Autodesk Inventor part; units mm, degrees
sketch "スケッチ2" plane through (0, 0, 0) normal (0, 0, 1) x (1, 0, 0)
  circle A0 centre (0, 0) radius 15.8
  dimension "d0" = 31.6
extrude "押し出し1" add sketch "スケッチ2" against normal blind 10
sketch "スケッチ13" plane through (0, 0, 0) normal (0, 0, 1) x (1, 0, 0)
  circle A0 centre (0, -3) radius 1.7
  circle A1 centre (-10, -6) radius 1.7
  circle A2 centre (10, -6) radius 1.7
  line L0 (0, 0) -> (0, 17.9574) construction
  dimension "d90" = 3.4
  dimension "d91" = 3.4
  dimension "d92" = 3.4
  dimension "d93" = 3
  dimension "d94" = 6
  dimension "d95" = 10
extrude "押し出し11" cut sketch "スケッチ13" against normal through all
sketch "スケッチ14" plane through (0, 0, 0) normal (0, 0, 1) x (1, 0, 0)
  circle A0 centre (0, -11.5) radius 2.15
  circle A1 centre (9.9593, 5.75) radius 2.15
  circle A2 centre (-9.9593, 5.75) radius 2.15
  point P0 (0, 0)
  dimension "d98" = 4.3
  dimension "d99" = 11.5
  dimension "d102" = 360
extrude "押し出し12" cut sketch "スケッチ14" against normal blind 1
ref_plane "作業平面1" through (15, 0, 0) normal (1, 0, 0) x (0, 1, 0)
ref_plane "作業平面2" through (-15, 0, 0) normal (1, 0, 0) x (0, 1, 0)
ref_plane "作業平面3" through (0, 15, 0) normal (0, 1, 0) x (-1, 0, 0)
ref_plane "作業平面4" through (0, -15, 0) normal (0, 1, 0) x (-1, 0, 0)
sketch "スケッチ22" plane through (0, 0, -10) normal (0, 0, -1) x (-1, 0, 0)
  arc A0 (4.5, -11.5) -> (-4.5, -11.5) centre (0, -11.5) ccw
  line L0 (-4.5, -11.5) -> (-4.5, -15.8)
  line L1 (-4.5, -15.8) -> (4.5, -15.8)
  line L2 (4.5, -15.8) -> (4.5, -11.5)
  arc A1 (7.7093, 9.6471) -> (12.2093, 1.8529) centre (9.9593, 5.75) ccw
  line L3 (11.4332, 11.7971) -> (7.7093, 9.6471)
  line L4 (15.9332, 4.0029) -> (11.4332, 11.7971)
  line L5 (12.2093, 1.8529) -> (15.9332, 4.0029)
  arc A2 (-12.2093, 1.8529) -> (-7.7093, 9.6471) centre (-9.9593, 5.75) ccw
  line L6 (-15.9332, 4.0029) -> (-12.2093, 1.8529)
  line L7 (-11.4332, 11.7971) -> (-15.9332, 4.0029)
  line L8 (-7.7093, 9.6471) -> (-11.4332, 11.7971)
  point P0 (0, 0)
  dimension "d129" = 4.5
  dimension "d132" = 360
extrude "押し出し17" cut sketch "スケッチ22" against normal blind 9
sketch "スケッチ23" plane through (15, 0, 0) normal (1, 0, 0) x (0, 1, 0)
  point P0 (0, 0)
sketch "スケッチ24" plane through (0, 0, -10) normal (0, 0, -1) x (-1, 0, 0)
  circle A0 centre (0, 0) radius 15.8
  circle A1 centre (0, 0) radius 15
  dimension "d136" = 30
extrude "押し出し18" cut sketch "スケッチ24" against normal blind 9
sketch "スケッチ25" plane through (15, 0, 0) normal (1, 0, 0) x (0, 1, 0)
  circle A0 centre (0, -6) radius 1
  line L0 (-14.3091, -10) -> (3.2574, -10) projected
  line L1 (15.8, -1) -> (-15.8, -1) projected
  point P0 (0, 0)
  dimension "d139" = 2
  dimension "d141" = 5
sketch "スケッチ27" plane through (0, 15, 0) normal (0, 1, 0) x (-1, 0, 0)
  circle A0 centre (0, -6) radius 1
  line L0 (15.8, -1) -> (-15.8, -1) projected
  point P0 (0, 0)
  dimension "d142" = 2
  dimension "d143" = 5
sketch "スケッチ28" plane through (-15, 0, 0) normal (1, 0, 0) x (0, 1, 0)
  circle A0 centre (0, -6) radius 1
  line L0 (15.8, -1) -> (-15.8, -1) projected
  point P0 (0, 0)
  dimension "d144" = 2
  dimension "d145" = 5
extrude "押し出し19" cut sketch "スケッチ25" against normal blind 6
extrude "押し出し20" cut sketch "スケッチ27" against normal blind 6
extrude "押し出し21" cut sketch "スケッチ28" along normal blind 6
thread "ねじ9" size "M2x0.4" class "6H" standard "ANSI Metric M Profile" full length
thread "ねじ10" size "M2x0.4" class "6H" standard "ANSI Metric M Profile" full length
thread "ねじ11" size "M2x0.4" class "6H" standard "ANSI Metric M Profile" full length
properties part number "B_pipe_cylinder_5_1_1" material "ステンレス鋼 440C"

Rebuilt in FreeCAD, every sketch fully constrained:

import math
import FreeCAD as App
import Part
import Sketcher

doc = App.newDocument("Part")
body = doc.addObject("PartDesign::Body", "Body")

# Sketch on XY plane
sketch1 = doc.addObject("Sketcher::SketchObject", "Sketch")
body.addObject(sketch1)
sketch1.AttachmentSupport = (doc.XY_Plane, [""])
sketch1.MapMode = "FlatFace"
sketch1.addGeometry(Part.Circle(App.Vector(0, 0, 0), App.Vector(0, 0, 1), 16), False)
sketch1.addConstraint([
    Sketcher.Constraint("Coincident", 0, 3, -1, 1),
    Sketcher.Constraint("Diameter", 0, 31.6),
])
pad1 = doc.addObject("PartDesign::Pad", "Pad")
body.addObject(pad1)
pad1.Profile = sketch1
pad1.Length = 10
pad1.Reversed = True

# Sketch on XY plane
sketch2 = doc.addObject("Sketcher::SketchObject", "Sketch001")
body.addObject(sketch2)
sketch2.AttachmentSupport = (doc.XY_Plane, [""])
sketch2.MapMode = "FlatFace"
sketch2.addGeometry([
    Part.Circle(App.Vector(0, -3, 0), App.Vector(0, 0, 1), 1.7),
    Part.Circle(App.Vector(-10, -6, 0), App.Vector(0, 0, 1), 1.7),
    Part.Circle(App.Vector(10, -6, 0), App.Vector(0, 0, 1), 1.7),
], False)
sketch2.addConstraint([
    Sketcher.Constraint("Equal", 0, 1),
    Sketcher.Constraint("Equal", 1, 2),
    Sketcher.Constraint("Symmetric", 1, 3, 2, 3, -2),
    Sketcher.Constraint("PointOnObject", 0, 3, -2),
    Sketcher.Constraint("Diameter", 0, 3.4),
    Sketcher.Constraint("DistanceY", 0, 3, -1, 1, 3.0),
    Sketcher.Constraint("DistanceX", 1, 3, -1, 1, 10.0),
    Sketcher.Constraint("DistanceY", 1, 3, -1, 1, 6.0),
])
pocket1 = doc.addObject("PartDesign::Pocket", "Pocket")
body.addObject(pocket1)
pocket1.Profile = sketch2
pocket1.Type = "ThroughAll"

# Sketch on XY plane
sketch3 = doc.addObject("Sketcher::SketchObject", "Sketch002")
body.addObject(sketch3)
sketch3.AttachmentSupport = (doc.XY_Plane, [""])
sketch3.MapMode = "FlatFace"
sketch3.addGeometry([
    Part.Circle(App.Vector(0, -11.5, 0), App.Vector(0, 0, 1), 2.1),
    Part.Circle(App.Vector(10, 5.8, 0), App.Vector(0, 0, 1), 2.1),
    Part.Circle(App.Vector(-10, 5.8, 0), App.Vector(0, 0, 1), 2.1),
], False)
sketch3.addConstraint([
    Sketcher.Constraint("Equal", 0, 1),
    Sketcher.Constraint("Equal", 1, 2),
    Sketcher.Constraint("Symmetric", 1, 3, 2, 3, -2),
    Sketcher.Constraint("PointOnObject", 0, 3, -2),
    Sketcher.Constraint("Diameter", 0, 4.3),
    Sketcher.Constraint("DistanceY", 0, 3, -1, 1, 11.5),
    Sketcher.Constraint("DistanceY", -1, 1, 1, 3, 5.75),
    Sketcher.Constraint("DistanceX", -1, 1, 1, 3, 9.9593),
])
pocket2 = doc.addObject("PartDesign::Pocket", "Pocket001")
body.addObject(pocket2)
pocket2.Profile = sketch3
pocket2.Length = 1

# Sketch on XY plane
sketch4 = doc.addObject("Sketcher::SketchObject", "Sketch003")
body.addObject(sketch4)
sketch4.AttachmentSupport = (doc.XY_Plane, [""])
sketch4.MapMode = "FlatFace"
sketch4.AttachmentOffset = App.Placement(App.Vector(0, 0, -10), App.Rotation())
sketch4.addGeometry([
    Part.LineSegment(App.Vector(-4.5, -15.8, 0), App.Vector(-4.5, -11.5, 0)),  # 0
    Part.ArcOfCircle(Part.Circle(App.Vector(0, -11.5, 0), App.Vector(0, 0, 1), 4.5), math.radians(0), math.radians(180)),  # 1
    Part.LineSegment(App.Vector(4.5, -11.5, 0), App.Vector(4.5, -15.8, 0)),  # 2
    Part.LineSegment(App.Vector(4.5, -15.8, 0), App.Vector(-4.5, -15.8, 0)),  # 3
    Part.LineSegment(App.Vector(-11.4, 11.8, 0), App.Vector(-7.7, 9.6, 0)),  # 4
    Part.ArcOfCircle(Part.Circle(App.Vector(-10, 5.8, 0), App.Vector(0, 0, 1), 4.5), math.radians(-120), math.radians(60)),  # 5
    Part.LineSegment(App.Vector(-12.2, 1.9, 0), App.Vector(-15.9, 4, 0)),  # 6
    Part.LineSegment(App.Vector(-15.9, 4, 0), App.Vector(-11.4, 11.8, 0)),  # 7
    Part.LineSegment(App.Vector(15.9, 4, 0), App.Vector(12.2, 1.9, 0)),  # 8
    Part.ArcOfCircle(Part.Circle(App.Vector(10, 5.8, 0), App.Vector(0, 0, 1), 4.5), math.radians(120), math.radians(300)),  # 9
    Part.LineSegment(App.Vector(7.7, 9.6, 0), App.Vector(11.4, 11.8, 0)),  # 10
    Part.LineSegment(App.Vector(11.4, 11.8, 0), App.Vector(15.9, 4, 0)),  # 11
], False)
sketch4.addConstraint([
    Sketcher.Constraint("Tangent", 0, 2, 1, 2),
    Sketcher.Constraint("Tangent", 1, 1, 2, 1),
    Sketcher.Constraint("Coincident", 2, 2, 3, 1),
    Sketcher.Constraint("Coincident", 3, 2, 0, 1),
    Sketcher.Constraint("Tangent", 4, 2, 5, 2),
    Sketcher.Constraint("Tangent", 5, 1, 6, 1),
    Sketcher.Constraint("Coincident", 6, 2, 7, 1),
    Sketcher.Constraint("Coincident", 7, 2, 4, 1),
    Sketcher.Constraint("Tangent", 8, 2, 9, 2),
    Sketcher.Constraint("Tangent", 9, 1, 10, 1),
    Sketcher.Constraint("Coincident", 10, 2, 11, 1),
    Sketcher.Constraint("Coincident", 11, 2, 8, 1),
    Sketcher.Constraint("Vertical", 0),
    Sketcher.Constraint("Vertical", 2),
    Sketcher.Constraint("Horizontal", 3),
    Sketcher.Constraint("Equal", 1, 5),
    Sketcher.Constraint("Equal", 5, 9),
    Sketcher.Constraint("Symmetric", 5, 3, 9, 3, -2),
    Sketcher.Constraint("Symmetric", 7, 2, 10, 2, -2),
    Sketcher.Constraint("Symmetric", 6, 2, 11, 2, -2),
    Sketcher.Constraint("PointOnObject", 1, 3, -2),
    Sketcher.Constraint("Parallel", 4, 6),
    Sketcher.Constraint("Perpendicular", 6, 7),
    Sketcher.Constraint("Radius", 1, 4.5),
    Sketcher.Constraint("DistanceX", 5, 1, 4, 2, 4.5),
    Sketcher.Constraint("DistanceY", 0, 1, 0, 2, 4.3),
    Sketcher.Constraint("Distance", 4, 4.3),
    Sketcher.Constraint("DistanceY", 1, 3, -1, 1, 11.5),
    Sketcher.Constraint("DistanceY", -1, 1, 5, 3, 5.75),
    Sketcher.Constraint("DistanceX", 5, 3, -1, 1, 9.9593),
])
pocket3 = doc.addObject("PartDesign::Pocket", "Pocket002")
body.addObject(pocket3)
pocket3.Profile = sketch4
pocket3.Length = 9
pocket3.Reversed = True

# Sketch on XY plane
sketch5 = doc.addObject("Sketcher::SketchObject", "Sketch004")
body.addObject(sketch5)
sketch5.AttachmentSupport = (doc.XY_Plane, [""])
sketch5.MapMode = "FlatFace"
sketch5.AttachmentOffset = App.Placement(App.Vector(0, 0, -10), App.Rotation())
sketch5.addGeometry([
    Part.Circle(App.Vector(0, 0, 0), App.Vector(0, 0, 1), 16),
    Part.Circle(App.Vector(0, 0, 0), App.Vector(0, 0, 1), 15),
], False)
sketch5.addConstraint([
    Sketcher.Constraint("Coincident", 0, 3, -1, 1),
    Sketcher.Constraint("Coincident", 1, 3, -1, 1),
    Sketcher.Constraint("Diameter", 1, 30.0),
    Sketcher.Constraint("Diameter", 0, 31.6),
])
pocket4 = doc.addObject("PartDesign::Pocket", "Pocket003")
body.addObject(pocket4)
pocket4.Profile = sketch5
pocket4.Length = 9
pocket4.Reversed = True

# Sketch on YZ plane
sketch6 = doc.addObject("Sketcher::SketchObject", "Sketch005")
body.addObject(sketch6)
sketch6.AttachmentSupport = (doc.YZ_Plane, [""])
sketch6.MapMode = "FlatFace"
sketch6.AttachmentOffset = App.Placement(App.Vector(0, 0, 15), App.Rotation())
sketch6.addGeometry(Part.Circle(App.Vector(0, -6, 0), App.Vector(0, 0, 1), 1), False)
sketch6.addConstraint([
    Sketcher.Constraint("PointOnObject", 0, 3, -2),
    Sketcher.Constraint("Diameter", 0, 2.0),
    Sketcher.Constraint("DistanceY", 0, 3, -1, 1, 6.0),
])
pocket5 = doc.addObject("PartDesign::Pocket", "Pocket004")
body.addObject(pocket5)
pocket5.Profile = sketch6
pocket5.Length = 6

# Sketch on XZ plane
sketch7 = doc.addObject("Sketcher::SketchObject", "Sketch006")
body.addObject(sketch7)
sketch7.AttachmentSupport = (doc.XZ_Plane, [""])
sketch7.MapMode = "FlatFace"
sketch7.AttachmentOffset = App.Placement(App.Vector(0, 0, -15), App.Rotation())
sketch7.addGeometry(Part.Circle(App.Vector(0, -6, 0), App.Vector(0, 0, 1), 1), False)
sketch7.addConstraint([
    Sketcher.Constraint("PointOnObject", 0, 3, -2),
    Sketcher.Constraint("Diameter", 0, 2.0),
    Sketcher.Constraint("DistanceY", 0, 3, -1, 1, 6.0),
])
pocket6 = doc.addObject("PartDesign::Pocket", "Pocket005")
body.addObject(pocket6)
pocket6.Profile = sketch7
pocket6.Length = 6
pocket6.Reversed = True

# Sketch on YZ plane
sketch8 = doc.addObject("Sketcher::SketchObject", "Sketch007")
body.addObject(sketch8)
sketch8.AttachmentSupport = (doc.YZ_Plane, [""])
sketch8.MapMode = "FlatFace"
sketch8.AttachmentOffset = App.Placement(App.Vector(0, 0, -15), App.Rotation())
sketch8.addGeometry(Part.Circle(App.Vector(0, -6, 0), App.Vector(0, 0, 1), 1), False)
sketch8.addConstraint([
    Sketcher.Constraint("PointOnObject", 0, 3, -2),
    Sketcher.Constraint("Diameter", 0, 2.0),
    Sketcher.Constraint("DistanceY", 0, 3, -1, 1, 6.0),
])
pocket7 = doc.addObject("PartDesign::Pocket", "Pocket006")
body.addObject(pocket7)
pocket7.Profile = sketch8
pocket7.Length = 6
pocket7.Reversed = True

doc.recompute()
